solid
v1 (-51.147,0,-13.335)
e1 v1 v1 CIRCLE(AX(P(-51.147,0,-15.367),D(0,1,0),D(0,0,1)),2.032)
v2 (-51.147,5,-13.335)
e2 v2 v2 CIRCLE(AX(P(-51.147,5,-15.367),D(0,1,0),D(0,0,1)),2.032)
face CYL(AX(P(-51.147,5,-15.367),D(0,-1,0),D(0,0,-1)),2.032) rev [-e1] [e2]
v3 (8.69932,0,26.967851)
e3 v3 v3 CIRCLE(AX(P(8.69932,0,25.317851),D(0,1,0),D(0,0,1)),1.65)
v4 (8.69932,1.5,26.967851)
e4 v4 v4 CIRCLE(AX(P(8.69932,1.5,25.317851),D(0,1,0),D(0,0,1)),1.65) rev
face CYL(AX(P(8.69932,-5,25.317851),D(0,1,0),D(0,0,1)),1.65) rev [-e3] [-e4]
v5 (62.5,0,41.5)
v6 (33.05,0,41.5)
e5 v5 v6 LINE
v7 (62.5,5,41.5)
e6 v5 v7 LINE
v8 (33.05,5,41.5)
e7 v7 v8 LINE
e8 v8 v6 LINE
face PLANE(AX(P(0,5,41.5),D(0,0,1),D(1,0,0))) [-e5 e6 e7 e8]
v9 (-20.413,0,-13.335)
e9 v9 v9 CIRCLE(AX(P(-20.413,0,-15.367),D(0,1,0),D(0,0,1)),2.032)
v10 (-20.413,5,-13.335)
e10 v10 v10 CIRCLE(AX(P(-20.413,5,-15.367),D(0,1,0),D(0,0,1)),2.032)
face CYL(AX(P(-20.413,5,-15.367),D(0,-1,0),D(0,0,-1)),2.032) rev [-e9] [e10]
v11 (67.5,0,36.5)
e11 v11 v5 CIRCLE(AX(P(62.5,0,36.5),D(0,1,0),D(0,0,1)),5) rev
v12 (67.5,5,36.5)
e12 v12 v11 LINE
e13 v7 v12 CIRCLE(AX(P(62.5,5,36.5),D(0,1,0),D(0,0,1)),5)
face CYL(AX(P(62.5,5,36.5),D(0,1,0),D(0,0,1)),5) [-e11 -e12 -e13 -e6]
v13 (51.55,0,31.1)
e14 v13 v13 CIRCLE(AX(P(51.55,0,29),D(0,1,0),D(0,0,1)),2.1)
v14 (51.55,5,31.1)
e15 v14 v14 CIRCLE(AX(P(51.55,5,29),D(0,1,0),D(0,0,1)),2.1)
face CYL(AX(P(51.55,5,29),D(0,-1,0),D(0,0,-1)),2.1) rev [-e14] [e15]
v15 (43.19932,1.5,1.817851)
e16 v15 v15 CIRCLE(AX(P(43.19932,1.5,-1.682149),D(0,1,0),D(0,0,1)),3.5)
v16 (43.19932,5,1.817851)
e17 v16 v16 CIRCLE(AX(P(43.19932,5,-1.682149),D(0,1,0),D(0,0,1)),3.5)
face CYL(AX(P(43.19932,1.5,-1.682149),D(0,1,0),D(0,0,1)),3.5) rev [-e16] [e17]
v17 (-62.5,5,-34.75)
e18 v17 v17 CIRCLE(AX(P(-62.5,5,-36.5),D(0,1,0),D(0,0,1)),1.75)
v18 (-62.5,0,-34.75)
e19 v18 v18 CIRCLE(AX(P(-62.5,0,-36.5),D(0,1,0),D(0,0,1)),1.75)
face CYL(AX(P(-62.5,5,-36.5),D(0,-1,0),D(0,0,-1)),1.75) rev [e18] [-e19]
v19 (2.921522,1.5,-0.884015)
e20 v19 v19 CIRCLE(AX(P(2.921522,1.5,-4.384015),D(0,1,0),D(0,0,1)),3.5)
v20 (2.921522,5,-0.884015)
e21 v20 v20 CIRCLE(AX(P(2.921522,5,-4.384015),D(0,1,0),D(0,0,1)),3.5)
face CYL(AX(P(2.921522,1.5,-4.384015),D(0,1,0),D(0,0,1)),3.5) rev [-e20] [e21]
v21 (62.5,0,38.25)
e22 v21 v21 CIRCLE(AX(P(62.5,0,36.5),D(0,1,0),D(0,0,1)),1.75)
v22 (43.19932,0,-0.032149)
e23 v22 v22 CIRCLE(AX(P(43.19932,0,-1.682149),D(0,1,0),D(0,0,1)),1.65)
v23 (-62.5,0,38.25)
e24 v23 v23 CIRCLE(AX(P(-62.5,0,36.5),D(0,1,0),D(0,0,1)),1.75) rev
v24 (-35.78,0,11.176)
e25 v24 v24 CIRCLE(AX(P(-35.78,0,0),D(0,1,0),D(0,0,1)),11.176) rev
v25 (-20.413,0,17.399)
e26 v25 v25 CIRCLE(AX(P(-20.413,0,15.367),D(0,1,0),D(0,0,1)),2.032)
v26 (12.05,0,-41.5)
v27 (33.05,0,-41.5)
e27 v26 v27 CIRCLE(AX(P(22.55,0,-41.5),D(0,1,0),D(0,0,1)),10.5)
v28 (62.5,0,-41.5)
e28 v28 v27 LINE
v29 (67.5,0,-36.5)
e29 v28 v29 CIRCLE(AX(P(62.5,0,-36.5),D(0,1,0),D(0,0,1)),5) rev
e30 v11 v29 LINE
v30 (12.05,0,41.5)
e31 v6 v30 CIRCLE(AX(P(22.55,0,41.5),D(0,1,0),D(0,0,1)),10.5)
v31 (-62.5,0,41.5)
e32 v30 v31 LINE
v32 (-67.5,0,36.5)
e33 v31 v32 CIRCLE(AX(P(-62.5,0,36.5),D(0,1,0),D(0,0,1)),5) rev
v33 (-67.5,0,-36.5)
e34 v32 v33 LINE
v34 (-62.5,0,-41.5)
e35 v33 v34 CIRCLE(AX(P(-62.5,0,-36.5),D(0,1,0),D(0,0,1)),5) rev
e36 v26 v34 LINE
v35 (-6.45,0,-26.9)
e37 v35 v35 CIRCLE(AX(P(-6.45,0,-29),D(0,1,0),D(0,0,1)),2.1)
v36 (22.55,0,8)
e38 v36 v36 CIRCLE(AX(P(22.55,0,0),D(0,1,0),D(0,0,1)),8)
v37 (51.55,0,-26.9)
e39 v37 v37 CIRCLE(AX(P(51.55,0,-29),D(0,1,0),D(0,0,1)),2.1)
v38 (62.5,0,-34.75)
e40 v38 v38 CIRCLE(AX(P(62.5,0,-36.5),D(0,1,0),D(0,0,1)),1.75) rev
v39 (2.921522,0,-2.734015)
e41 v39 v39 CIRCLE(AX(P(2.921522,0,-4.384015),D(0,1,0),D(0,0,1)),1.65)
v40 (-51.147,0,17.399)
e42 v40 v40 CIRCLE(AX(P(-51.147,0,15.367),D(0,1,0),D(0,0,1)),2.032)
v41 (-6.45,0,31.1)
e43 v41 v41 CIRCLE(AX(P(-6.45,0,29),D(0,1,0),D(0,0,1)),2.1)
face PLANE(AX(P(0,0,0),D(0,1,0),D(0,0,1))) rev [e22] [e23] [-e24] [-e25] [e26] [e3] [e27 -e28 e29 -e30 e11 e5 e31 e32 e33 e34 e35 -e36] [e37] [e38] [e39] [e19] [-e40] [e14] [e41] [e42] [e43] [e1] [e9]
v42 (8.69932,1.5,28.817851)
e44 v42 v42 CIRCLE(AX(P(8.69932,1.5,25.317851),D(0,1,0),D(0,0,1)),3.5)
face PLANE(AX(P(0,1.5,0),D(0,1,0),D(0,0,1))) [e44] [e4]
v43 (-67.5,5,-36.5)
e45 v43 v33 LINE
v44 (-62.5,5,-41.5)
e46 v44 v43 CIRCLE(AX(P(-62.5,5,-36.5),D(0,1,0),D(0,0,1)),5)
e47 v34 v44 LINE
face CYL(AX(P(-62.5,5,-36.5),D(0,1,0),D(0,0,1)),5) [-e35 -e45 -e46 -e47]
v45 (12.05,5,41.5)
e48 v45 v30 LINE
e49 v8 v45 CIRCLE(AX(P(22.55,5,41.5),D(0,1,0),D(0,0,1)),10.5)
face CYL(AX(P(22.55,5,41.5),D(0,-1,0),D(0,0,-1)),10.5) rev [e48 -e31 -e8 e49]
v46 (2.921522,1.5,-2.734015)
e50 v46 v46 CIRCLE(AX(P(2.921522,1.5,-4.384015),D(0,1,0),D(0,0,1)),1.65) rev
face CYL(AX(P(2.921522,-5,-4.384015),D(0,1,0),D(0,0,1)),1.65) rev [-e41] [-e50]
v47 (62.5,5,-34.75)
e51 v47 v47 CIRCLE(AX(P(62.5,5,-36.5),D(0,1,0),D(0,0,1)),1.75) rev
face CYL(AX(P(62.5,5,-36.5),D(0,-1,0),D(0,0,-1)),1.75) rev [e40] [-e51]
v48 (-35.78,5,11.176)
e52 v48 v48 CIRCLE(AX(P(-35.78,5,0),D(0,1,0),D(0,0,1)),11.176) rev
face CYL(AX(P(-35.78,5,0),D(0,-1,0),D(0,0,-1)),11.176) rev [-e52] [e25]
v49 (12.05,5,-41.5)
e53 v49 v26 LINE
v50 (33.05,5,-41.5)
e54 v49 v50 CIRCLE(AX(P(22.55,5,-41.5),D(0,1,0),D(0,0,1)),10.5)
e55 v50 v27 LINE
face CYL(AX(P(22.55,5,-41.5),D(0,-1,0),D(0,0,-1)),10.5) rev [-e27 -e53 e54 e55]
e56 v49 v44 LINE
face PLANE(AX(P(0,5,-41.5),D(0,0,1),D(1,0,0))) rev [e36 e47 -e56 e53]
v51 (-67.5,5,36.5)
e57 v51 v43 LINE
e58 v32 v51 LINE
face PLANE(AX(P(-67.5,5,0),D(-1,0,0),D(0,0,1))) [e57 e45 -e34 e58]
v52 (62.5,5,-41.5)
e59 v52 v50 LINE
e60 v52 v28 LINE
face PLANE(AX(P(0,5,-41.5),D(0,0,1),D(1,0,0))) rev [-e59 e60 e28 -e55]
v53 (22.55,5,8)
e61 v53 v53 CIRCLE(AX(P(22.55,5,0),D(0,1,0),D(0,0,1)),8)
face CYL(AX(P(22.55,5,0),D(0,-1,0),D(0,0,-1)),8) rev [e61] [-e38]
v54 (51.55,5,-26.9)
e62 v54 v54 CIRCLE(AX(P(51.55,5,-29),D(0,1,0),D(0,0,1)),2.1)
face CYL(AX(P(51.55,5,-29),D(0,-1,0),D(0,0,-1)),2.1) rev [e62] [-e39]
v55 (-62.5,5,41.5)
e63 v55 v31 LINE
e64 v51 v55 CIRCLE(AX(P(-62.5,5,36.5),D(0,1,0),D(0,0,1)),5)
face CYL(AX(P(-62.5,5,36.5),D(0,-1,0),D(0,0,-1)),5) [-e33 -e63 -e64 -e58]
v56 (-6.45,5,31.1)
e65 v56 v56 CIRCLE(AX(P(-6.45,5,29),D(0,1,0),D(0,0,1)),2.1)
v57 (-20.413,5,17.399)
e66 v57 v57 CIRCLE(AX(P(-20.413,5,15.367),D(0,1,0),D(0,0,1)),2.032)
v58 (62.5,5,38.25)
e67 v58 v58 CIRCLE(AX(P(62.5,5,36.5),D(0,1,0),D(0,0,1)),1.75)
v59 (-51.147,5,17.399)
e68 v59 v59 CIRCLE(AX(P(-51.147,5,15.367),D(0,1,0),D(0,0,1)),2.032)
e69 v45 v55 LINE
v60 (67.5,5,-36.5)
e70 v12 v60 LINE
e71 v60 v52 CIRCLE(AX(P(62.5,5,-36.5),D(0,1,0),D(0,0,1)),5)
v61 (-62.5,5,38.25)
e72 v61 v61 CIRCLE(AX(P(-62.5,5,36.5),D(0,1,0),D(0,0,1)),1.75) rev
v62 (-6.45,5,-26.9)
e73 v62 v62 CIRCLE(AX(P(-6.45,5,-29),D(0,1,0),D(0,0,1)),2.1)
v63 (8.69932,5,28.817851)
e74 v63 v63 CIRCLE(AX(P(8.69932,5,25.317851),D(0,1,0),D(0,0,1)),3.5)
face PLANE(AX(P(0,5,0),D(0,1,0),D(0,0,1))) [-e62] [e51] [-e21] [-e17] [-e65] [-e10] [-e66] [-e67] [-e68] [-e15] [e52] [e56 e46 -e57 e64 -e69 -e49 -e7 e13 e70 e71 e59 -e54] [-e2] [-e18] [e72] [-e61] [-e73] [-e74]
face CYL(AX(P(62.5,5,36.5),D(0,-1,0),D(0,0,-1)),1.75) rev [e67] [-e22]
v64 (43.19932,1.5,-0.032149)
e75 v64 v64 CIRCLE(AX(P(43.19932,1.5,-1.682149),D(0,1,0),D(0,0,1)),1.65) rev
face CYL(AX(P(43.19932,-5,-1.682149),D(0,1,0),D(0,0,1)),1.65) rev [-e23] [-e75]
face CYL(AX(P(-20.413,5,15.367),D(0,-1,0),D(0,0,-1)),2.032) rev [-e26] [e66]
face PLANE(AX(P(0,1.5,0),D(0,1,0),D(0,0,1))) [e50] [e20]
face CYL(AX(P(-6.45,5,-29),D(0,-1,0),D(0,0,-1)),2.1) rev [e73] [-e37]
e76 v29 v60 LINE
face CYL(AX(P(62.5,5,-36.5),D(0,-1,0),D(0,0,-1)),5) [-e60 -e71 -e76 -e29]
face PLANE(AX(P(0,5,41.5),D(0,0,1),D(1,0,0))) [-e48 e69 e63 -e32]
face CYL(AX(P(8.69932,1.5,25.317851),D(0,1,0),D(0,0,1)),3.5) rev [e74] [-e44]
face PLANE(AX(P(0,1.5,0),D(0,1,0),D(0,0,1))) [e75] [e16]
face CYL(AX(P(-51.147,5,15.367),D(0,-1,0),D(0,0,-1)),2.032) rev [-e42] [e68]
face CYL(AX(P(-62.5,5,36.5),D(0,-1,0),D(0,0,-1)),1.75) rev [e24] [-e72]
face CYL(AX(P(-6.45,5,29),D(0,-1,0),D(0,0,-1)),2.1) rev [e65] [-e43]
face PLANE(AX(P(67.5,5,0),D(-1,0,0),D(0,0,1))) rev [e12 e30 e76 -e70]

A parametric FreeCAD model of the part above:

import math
import FreeCAD as App
import Part
import Sketcher
from FreeCAD import Vector
Q = App.Units.Quantity


def edges_at(feature, points):
    """Names of the edges that pass closest to the given points."""
    edges = feature.Shape.Edges
    near = lambda p: min(range(len(edges)), key=lambda i: edges[i].distToShape(Part.Vertex(*p))[0])
    return sorted({f"Edge{near(p) + 1}" for p in points})

doc = App.newDocument("Part")
body = doc.addObject("PartDesign::Body", "Body")

sketch1 = body.newObject("Sketcher::SketchObject", "Sketch")
sketch1.AttachmentSupport = (doc.getObject("XZ_Plane"), [""])
sketch1.MapMode = "FlatFace"
sketch1.addGeometry(Part.LineSegment(Vector(33, 41.5, 0), Vector(67.5, 41.5, 0)), False)
sketch1.addGeometry(Part.LineSegment(Vector(67.5, 41.5, 0), Vector(67.5, -41.5, 0)), False)
sketch1.addGeometry(Part.LineSegment(Vector(67.5, -41.5, 0), Vector(33, -41.5, 0)), False)
sketch1.addGeometry(Part.ArcOfCircle(Part.Circle(Vector(22.6, -41.5, 0), Vector(0, 0, 1), 10.5), math.radians(0), math.radians(180)), False)
sketch1.addGeometry(Part.LineSegment(Vector(12.1, -41.5, 0), Vector(-67.5, -41.5, 0)), False)
sketch1.addGeometry(Part.LineSegment(Vector(-67.5, -41.5, 0), Vector(-67.5, 41.5, 0)), False)
sketch1.addGeometry(Part.LineSegment(Vector(-67.5, 41.5, 0), Vector(12.1, 41.5, 0)), False)
sketch1.addGeometry(Part.ArcOfCircle(Part.Circle(Vector(22.6, 41.5, 0), Vector(0, 0, 1), 10.5), math.radians(180), math.radians(360)), False)
sketch1.addGeometry(Part.Circle(Vector(62.5, 36.5, 0), Vector(0, 0, 1), 1.8), False)
sketch1.addGeometry(Part.Circle(Vector(51.5, 29, 0), Vector(0, 0, 1), 2.1), False)
sketch1.addGeometry(Part.Circle(Vector(-6.5, 29, 0), Vector(0, 0, 1), 2.1), False)
sketch1.addGeometry(Part.Circle(Vector(-62.5, 36.5, 0), Vector(0, 0, 1), 1.8), False)
sketch1.addGeometry(Part.Circle(Vector(-20.4, 15.4, 0), Vector(0, 0, 1), 2), False)
sketch1.addGeometry(Part.Circle(Vector(-51.1, 15.4, 0), Vector(0, 0, 1), 2), False)
sketch1.addGeometry(Part.Circle(Vector(22.6, 0, 0), Vector(0, 0, 1), 8), False)
sketch1.addGeometry(Part.Circle(Vector(51.5, -29, 0), Vector(0, 0, 1), 2.1), False)
sketch1.addGeometry(Part.Circle(Vector(62.5, -36.5, 0), Vector(0, 0, 1), 1.8), False)
sketch1.addGeometry(Part.Circle(Vector(-20.4, -15.4, 0), Vector(0, 0, 1), 2), False)
sketch1.addGeometry(Part.Circle(Vector(-35.8, 0, 0), Vector(0, 0, 1), 11.2), False)
sketch1.addGeometry(Part.Circle(Vector(-51.1, -15.4, 0), Vector(0, 0, 1), 2), False)
sketch1.addGeometry(Part.Circle(Vector(-6.5, -29, 0), Vector(0, 0, 1), 2.1), False)
sketch1.addGeometry(Part.Circle(Vector(-62.5, -36.5, 0), Vector(0, 0, 1), 1.8), False)
sketch1.addConstraint(Sketcher.Constraint("Coincident", 0, 2, 1, 1))
sketch1.addConstraint(Sketcher.Constraint("Coincident", 1, 2, 2, 1))
sketch1.addConstraint(Sketcher.Constraint("Coincident", 2, 2, 3, 1))
sketch1.addConstraint(Sketcher.Constraint("Coincident", 3, 2, 4, 1))
sketch1.addConstraint(Sketcher.Constraint("Coincident", 4, 2, 5, 1))
sketch1.addConstraint(Sketcher.Constraint("Coincident", 5, 2, 6, 1))
sketch1.addConstraint(Sketcher.Constraint("Coincident", 6, 2, 7, 1))
sketch1.addConstraint(Sketcher.Constraint("Coincident", 7, 2, 0, 1))
sketch1.addConstraint(Sketcher.Constraint("Horizontal", 0))
sketch1.addConstraint(Sketcher.Constraint("Vertical", 1))
sketch1.addConstraint(Sketcher.Constraint("Horizontal", 2))
sketch1.addConstraint(Sketcher.Constraint("Horizontal", 4))
sketch1.addConstraint(Sketcher.Constraint("Vertical", 5))
sketch1.addConstraint(Sketcher.Constraint("Horizontal", 6))
sketch1.addConstraint(Sketcher.Constraint("Equal", 3, 7))
sketch1.addConstraint(Sketcher.Constraint("Equal", 9, 10))
sketch1.addConstraint(Sketcher.Constraint("Equal", 8, 11))
sketch1.addConstraint(Sketcher.Constraint("Equal", 12, 13))
sketch1.addConstraint(Sketcher.Constraint("Equal", 10, 15))
sketch1.addConstraint(Sketcher.Constraint("Equal", 11, 16))
sketch1.addConstraint(Sketcher.Constraint("Equal", 13, 17))
sketch1.addConstraint(Sketcher.Constraint("Equal", 17, 19))
sketch1.addConstraint(Sketcher.Constraint("Equal", 15, 20))
sketch1.addConstraint(Sketcher.Constraint("Equal", 16, 21))
sketch1.addConstraint(Sketcher.Constraint("Symmetric", 11, 3, 16, 3, -1, 1))
sketch1.addConstraint(Sketcher.Constraint("Symmetric", 8, 3, 21, 3, -1, 1))
sketch1.addConstraint(Sketcher.Constraint("Symmetric", 0, 2, 4, 2, -1, 1))
sketch1.addConstraint(Sketcher.Constraint("Symmetric", 8, 3, 11, 3, -2))
sketch1.addConstraint(Sketcher.Constraint("Symmetric", 3, 3, 7, 3, -1))
sketch1.addConstraint(Sketcher.Constraint("Symmetric", 9, 3, 15, 3, -1))
sketch1.addConstraint(Sketcher.Constraint("Symmetric", 12, 3, 17, 3, -1))
sketch1.addConstraint(Sketcher.Constraint("Symmetric", 13, 3, 19, 3, -1))
sketch1.addConstraint(Sketcher.Constraint("Symmetric", 10, 3, 20, 3, -1))
sketch1.addConstraint(Sketcher.Constraint("PointOnObject", 14, 3, -1))
sketch1.addConstraint(Sketcher.Constraint("PointOnObject", 18, 3, -1))
sketch1.addConstraint(Sketcher.Constraint("Horizontal", 9, 3, 10, 3))
sketch1.addConstraint(Sketcher.Constraint("Horizontal", 12, 3, 13, 3))
sketch1.addConstraint(Sketcher.Constraint("Horizontal", 7, 3, 0, 2))
sketch1.addConstraint(Sketcher.Constraint("Horizontal", 3, 3, 1, 2))
sketch1.addConstraint(Sketcher.Constraint("Horizontal", 0, 2, 5, 2))
sketch1.addConstraint(Sketcher.Constraint("Vertical", 7, 3, 14, 3))
sketch1.addConstraint(Sketcher.Constraint("Diameter", 14, Q("16 mm")))
sketch1.addConstraint(Sketcher.Constraint("Diameter", 8, Q("3.5 mm")))
sketch1.addConstraint(Sketcher.Constraint("Diameter", 9, Q("4.2 mm")))
sketch1.addConstraint(Sketcher.Constraint("Radius", 3, Q("10.5 mm")))
sketch1.addConstraint(Sketcher.Constraint("DistanceY", 1, 2, 1, 1, Q("83 mm")))
sketch1.addConstraint(Sketcher.Constraint("Diameter", 12, Q("4.064 mm")))
sketch1.addConstraint(Sketcher.Constraint("Diameter", 18, Q("22.352 mm")))
sketch1.addConstraint(Sketcher.Constraint("DistanceY", -1, 1, 9, 3, Q("29 mm")))
sketch1.addConstraint(Sketcher.Constraint("DistanceY", 8, 3, 7, 3, Q("5 mm")))
sketch1.addConstraint(Sketcher.Constraint("DistanceX", 7, 3, 9, 3, Q("29 mm")))
sketch1.addConstraint(Sketcher.Constraint("DistanceX", 10, 3, 7, 3, Q("29 mm")))
sketch1.addConstraint(Sketcher.Constraint("DistanceX", 11, 3, 8, 3, Q("125 mm")))
sketch1.addConstraint(Sketcher.Constraint("DistanceX", 8, 3, 0, 2, Q("5 mm")))
sketch1.addConstraint(Sketcher.Constraint("DistanceX", 0, 1, 0, 2, Q("34.45 mm")))
sketch1.addConstraint(Sketcher.Constraint("DistanceX", 18, 3, -1, 1, Q("35.78 mm")))
sketch1.addConstraint(Sketcher.Constraint("DistanceX", 12, 3, -1, 1, Q("20.413 mm")))
sketch1.addConstraint(Sketcher.Constraint("DistanceY", -1, 1, 12, 3, Q("15.367 mm")))
sketch1.addConstraint(Sketcher.Constraint("DistanceX", 13, 3, -1, 1, Q("51.147 mm")))
pad1 = body.newObject("PartDesign::Pad", "Pad")
pad1.Profile = sketch1
pad1.Length = 5
pad1.Reversed = True
doc.recompute()

fillet = body.newObject("PartDesign::Fillet", "Fillet")
fillet.Base = (pad1, edges_at(pad1, [
    (67.5, 2.5, -41.5),
    (67.5, 2.5, 41.5),
    (-67.5, 2.5, 41.5),
    (-67.5, 2.5, -41.5),
]))
fillet.Radius = 5

sketch2 = body.newObject("Sketcher::SketchObject", "Sketch001")
sketch2.AttachmentSupport = (doc.getObject("XZ_Plane"), [""])
sketch2.MapMode = "FlatFace"
sketch2.AttachmentOffset = App.Placement(Vector(0, 0, -5), App.Rotation())
sketch2.addGeometry(Part.Circle(Vector(43.2, -1.7, 0), Vector(0, 0, 1), 1.6), False)
sketch2.addGeometry(Part.Circle(Vector(2.9, -4.4, 0), Vector(0, 0, 1), 1.6), False)
sketch2.addGeometry(Part.Circle(Vector(8.7, 25.3, 0), Vector(0, 0, 1), 1.6), False)
sketch2.addConstraint(Sketcher.Constraint("Equal", 0, 1))
sketch2.addConstraint(Sketcher.Constraint("Equal", 1, 2))
sketch2.addConstraint(Sketcher.Constraint("Diameter", 0, Q("3.3 mm")))
sketch2.addConstraint(Sketcher.Constraint("DistanceY", 0, 3, 2, 3, Q("27 mm")))
sketch2.addConstraint(Sketcher.Constraint("DistanceX", 2, 3, 0, 3, Q("34.5 mm")))
sketch2.addConstraint(Sketcher.Constraint("DistanceX", -1, 1, 0, 3, Q("43.19932 mm")))
sketch2.addConstraint(Sketcher.Constraint("DistanceY", 0, 3, -1, 1, Q("1.682149 mm")))
sketch2.addConstraint(Sketcher.Constraint("DistanceX", -1, 1, 1, 3, Q("2.921522 mm")))
sketch2.addConstraint(Sketcher.Constraint("DistanceY", 1, 3, -1, 1, Q("4.384015 mm")))
pocket1 = body.newObject("PartDesign::Pocket", "Pocket")
pocket1.Profile = sketch2
pocket1.Length = 10
pocket1.Reversed = True

sketch3 = body.newObject("Sketcher::SketchObject", "Sketch002")
sketch3.AttachmentSupport = (doc.getObject("XZ_Plane"), [""])
sketch3.MapMode = "FlatFace"
sketch3.AttachmentOffset = App.Placement(Vector(0, 0, -5), App.Rotation())
sketch3.addGeometry(Part.Circle(Vector(2.9, -4.4, 0), Vector(0, 0, 1), 3.5), False)
sketch3.addGeometry(Part.Circle(Vector(2.9, -4.4, 0), Vector(0, 0, 1), 1.6), False)
sketch3.addGeometry(Part.Circle(Vector(8.7, 25.3, 0), Vector(0, 0, 1), 3.5), False)
sketch3.addGeometry(Part.Circle(Vector(8.7, 25.3, 0), Vector(0, 0, 1), 1.6), False)
sketch3.addGeometry(Part.Circle(Vector(43.2, -1.7, 0), Vector(0, 0, 1), 3.5), False)
sketch3.addGeometry(Part.Circle(Vector(43.2, -1.7, 0), Vector(0, 0, 1), 1.6), False)
sketch3.addConstraint(Sketcher.Constraint("Coincident", 1, 3, 0, 3))
sketch3.addConstraint(Sketcher.Constraint("Coincident", 3, 3, 2, 3))
sketch3.addConstraint(Sketcher.Constraint("Coincident", 5, 3, 4, 3))
sketch3.addConstraint(Sketcher.Constraint("Equal", 0, 2))
sketch3.addConstraint(Sketcher.Constraint("Equal", 1, 3))
sketch3.addConstraint(Sketcher.Constraint("Equal", 2, 4))
sketch3.addConstraint(Sketcher.Constraint("Equal", 3, 5))
sketch3.addConstraint(Sketcher.Constraint("Diameter", 0, Q("7 mm")))
sketch3.addConstraint(Sketcher.Constraint("Diameter", 1, Q("3.3 mm")))
sketch3.addConstraint(Sketcher.Constraint("DistanceY", 4, 3, 2, 3, Q("27 mm")))
sketch3.addConstraint(Sketcher.Constraint("DistanceX", 2, 3, 4, 3, Q("34.5 mm")))
sketch3.addConstraint(Sketcher.Constraint("DistanceX", -1, 1, 2, 3, Q("8.69932 mm")))
sketch3.addConstraint(Sketcher.Constraint("DistanceY", -1, 1, 2, 3, Q("25.317851 mm")))
sketch3.addConstraint(Sketcher.Constraint("DistanceX", -1, 1, 0, 3, Q("2.921522 mm")))
sketch3.addConstraint(Sketcher.Constraint("DistanceY", 0, 3, -1, 1, Q("4.384015 mm")))
pocket2 = body.newObject("PartDesign::Pocket", "Pocket001")
pocket2.Profile = sketch3
pocket2.Length = 3.5
pocket2.Reversed = True

doc.recompute()
